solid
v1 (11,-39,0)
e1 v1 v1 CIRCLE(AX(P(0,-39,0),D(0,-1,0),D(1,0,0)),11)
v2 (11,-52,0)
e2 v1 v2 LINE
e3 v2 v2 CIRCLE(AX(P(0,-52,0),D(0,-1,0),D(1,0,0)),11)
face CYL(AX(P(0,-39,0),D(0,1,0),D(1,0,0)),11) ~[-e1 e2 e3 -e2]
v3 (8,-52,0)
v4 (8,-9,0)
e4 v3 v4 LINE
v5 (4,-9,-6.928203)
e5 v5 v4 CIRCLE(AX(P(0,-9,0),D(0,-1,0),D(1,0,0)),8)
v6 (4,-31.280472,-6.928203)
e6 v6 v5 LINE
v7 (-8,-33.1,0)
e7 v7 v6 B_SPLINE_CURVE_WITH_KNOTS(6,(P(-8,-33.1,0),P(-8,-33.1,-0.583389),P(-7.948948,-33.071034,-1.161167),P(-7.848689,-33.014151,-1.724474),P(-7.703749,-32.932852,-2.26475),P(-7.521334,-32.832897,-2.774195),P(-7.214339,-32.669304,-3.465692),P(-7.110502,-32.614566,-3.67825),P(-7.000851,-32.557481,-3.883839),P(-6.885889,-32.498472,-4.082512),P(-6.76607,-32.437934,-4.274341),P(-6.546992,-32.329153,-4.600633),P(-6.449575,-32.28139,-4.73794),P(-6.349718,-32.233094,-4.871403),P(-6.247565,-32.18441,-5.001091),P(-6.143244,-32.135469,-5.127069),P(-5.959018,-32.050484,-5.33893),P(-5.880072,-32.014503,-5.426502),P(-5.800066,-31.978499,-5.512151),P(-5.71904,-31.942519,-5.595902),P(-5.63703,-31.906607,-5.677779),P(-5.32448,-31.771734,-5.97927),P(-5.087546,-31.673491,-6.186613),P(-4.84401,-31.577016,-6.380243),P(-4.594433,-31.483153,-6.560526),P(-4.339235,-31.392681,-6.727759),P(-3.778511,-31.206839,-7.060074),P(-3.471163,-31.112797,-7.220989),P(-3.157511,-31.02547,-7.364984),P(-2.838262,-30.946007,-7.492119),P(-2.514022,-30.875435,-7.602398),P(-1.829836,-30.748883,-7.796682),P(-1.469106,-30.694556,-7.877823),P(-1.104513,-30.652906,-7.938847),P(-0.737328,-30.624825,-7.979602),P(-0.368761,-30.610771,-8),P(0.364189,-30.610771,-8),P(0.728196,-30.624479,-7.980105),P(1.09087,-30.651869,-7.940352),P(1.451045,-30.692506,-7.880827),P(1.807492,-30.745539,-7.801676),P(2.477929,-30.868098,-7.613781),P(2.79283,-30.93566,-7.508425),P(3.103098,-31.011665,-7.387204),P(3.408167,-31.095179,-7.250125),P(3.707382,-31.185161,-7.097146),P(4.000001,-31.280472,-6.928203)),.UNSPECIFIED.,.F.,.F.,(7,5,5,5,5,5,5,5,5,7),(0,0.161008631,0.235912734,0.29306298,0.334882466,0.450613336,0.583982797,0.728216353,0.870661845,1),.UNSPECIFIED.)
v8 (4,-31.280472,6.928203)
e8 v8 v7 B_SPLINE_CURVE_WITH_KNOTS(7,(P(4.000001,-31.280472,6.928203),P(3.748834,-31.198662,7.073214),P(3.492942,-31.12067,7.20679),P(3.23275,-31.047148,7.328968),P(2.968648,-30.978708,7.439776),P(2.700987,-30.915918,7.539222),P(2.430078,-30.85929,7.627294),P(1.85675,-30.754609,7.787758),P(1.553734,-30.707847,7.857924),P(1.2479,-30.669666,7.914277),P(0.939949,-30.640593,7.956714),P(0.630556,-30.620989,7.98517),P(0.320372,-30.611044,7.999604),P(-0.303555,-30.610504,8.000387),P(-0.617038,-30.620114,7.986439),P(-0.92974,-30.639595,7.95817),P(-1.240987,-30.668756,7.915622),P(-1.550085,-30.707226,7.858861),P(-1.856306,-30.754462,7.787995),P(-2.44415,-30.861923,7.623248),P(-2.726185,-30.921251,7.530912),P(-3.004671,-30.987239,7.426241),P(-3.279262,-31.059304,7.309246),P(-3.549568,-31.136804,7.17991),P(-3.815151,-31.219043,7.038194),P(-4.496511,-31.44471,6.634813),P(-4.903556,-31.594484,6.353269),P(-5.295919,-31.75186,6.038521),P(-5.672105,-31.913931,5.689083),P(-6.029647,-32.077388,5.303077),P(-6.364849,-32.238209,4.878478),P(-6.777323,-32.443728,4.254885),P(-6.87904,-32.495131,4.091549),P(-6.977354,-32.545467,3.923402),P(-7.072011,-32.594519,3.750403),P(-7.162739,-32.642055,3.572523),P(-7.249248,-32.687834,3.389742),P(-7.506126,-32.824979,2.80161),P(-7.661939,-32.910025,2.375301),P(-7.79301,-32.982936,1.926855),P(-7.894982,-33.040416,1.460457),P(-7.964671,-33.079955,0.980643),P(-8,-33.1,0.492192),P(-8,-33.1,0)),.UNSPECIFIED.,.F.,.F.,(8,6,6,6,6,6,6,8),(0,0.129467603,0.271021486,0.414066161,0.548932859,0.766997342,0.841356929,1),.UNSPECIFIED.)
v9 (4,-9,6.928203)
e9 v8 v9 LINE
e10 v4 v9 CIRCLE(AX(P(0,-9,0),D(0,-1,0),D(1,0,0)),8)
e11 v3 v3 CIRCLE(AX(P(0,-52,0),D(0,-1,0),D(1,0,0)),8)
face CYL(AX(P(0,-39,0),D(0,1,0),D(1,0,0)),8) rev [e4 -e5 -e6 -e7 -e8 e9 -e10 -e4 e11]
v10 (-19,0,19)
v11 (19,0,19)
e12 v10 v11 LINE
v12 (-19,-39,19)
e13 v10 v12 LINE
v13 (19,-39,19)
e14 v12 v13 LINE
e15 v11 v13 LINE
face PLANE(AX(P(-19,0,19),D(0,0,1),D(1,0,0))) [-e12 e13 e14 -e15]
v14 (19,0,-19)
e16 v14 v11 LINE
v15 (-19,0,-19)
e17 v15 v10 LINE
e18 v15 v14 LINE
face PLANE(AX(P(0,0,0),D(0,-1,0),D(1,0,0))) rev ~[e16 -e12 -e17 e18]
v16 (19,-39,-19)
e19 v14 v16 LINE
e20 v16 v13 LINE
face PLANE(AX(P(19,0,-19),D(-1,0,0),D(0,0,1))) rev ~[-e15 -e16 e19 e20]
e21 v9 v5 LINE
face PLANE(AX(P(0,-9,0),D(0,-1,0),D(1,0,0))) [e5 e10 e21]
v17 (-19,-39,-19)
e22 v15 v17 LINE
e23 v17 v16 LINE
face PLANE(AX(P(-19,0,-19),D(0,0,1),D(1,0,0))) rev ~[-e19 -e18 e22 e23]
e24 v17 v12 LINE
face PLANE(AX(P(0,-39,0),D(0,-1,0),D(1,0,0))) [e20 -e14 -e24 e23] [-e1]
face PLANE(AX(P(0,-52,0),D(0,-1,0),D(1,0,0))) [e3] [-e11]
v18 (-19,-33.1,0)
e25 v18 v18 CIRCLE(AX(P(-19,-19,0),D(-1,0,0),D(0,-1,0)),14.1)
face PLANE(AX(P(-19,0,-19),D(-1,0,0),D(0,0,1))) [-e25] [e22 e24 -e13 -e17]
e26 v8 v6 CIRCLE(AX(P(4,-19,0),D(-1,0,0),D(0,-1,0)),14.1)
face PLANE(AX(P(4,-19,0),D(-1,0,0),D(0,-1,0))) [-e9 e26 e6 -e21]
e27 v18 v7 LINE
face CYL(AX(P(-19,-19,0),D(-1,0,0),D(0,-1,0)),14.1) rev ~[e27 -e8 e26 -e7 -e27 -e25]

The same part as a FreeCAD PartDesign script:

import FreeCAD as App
import Part
import Sketcher
Q = App.Units.Quantity

doc = App.newDocument("Part")
body = doc.addObject("PartDesign::Body", "Body")

# Sketch on XZ plane
sketch1 = body.newObject("Sketcher::SketchObject", "Sketch")
sketch1.AttachmentSupport = (doc.getObject("XZ_Plane"), [""])
sketch1.MapMode = "FlatFace"
sketch1.addGeometry([
    Part.LineSegment(App.Vector(-19, 19, 0), App.Vector(-19, -19, 0)),
    Part.LineSegment(App.Vector(-19, -19, 0), App.Vector(19, -19, 0)),
    Part.LineSegment(App.Vector(19, -19, 0), App.Vector(19, 19, 0)),
    Part.LineSegment(App.Vector(19, 19, 0), App.Vector(-19, 19, 0)),
], False)
sketch1.addConstraint([
    Sketcher.Constraint("Coincident", 0, 2, 1, 1),
    Sketcher.Constraint("Coincident", 1, 2, 2, 1),
    Sketcher.Constraint("Coincident", 2, 2, 3, 1),
    Sketcher.Constraint("Coincident", 3, 2, 0, 1),
    Sketcher.Constraint("Vertical", 0),
    Sketcher.Constraint("Horizontal", 1),
    Sketcher.Constraint("Vertical", 2),
    Sketcher.Constraint("Horizontal", 3),
    Sketcher.Constraint("Symmetric", 0, 2, 2, 2, -1, 1),
    Sketcher.Constraint("Equal", 3, 0),
    Sketcher.Constraint("DistanceX", 1, 1, 1, 2, Q("38 mm")),
])
pad1 = body.newObject("PartDesign::Pad", "Pad")
pad1.Profile = sketch1
pad1.Length = 39

# Sketch on XZ plane
sketch2 = body.newObject("Sketcher::SketchObject", "Sketch001")
sketch2.AttachmentSupport = (doc.getObject("XZ_Plane"), [""])
sketch2.MapMode = "FlatFace"
sketch2.AttachmentOffset = App.Placement(App.Vector(0, 0, 39), App.Rotation())
sketch2.addGeometry([
    Part.Circle(App.Vector(0, 0, 0), App.Vector(0, 0, 1), 11),
    Part.Circle(App.Vector(0, 0, 0), App.Vector(0, 0, 1), 8),
], False)
sketch2.addConstraint([
    Sketcher.Constraint("Coincident", 0, 3, -1, 1),
    Sketcher.Constraint("Coincident", 1, 3, -1, 1),
    Sketcher.Constraint("Diameter", 0, Q("22 mm")),
    Sketcher.Constraint("Diameter", 1, Q("16 mm")),
])
pad2 = body.newObject("PartDesign::Pad", "Pad001")
pad2.Profile = sketch2
pad2.Length = 13

# Sketch on XZ plane
sketch3 = body.newObject("Sketcher::SketchObject", "Sketch002")
sketch3.AttachmentSupport = (doc.getObject("XZ_Plane"), [""])
sketch3.MapMode = "FlatFace"
sketch3.AttachmentOffset = App.Placement(App.Vector(0, 0, 39), App.Rotation())
sketch3.addGeometry(Part.Circle(App.Vector(0, 0, 0), App.Vector(0, 0, 1), 8), False)
sketch3.addConstraint([
    Sketcher.Constraint("Coincident", 0, 3, -1, 1),
    Sketcher.Constraint("Diameter", 0, Q("16 mm")),
])
pocket1 = body.newObject("PartDesign::Pocket", "Pocket")
pocket1.Profile = sketch3
pocket1.Length = 30

# Sketch on YZ plane
sketch4 = body.newObject("Sketcher::SketchObject", "Sketch003")
sketch4.AttachmentSupport = (doc.getObject("YZ_Plane"), [""])
sketch4.MapMode = "FlatFace"
sketch4.AttachmentOffset = App.Placement(App.Vector(0, 0, -19), App.Rotation())
sketch4.addGeometry(Part.Circle(App.Vector(-19, 0, 0), App.Vector(0, 0, 1), 14), False)
sketch4.addConstraint([
    Sketcher.Constraint("PointOnObject", 0, 3, -1),
    Sketcher.Constraint("Diameter", 0, Q("28.2 mm")),
    Sketcher.Constraint("DistanceX", 0, 3, -1, 1, Q("19 mm")),
])
pocket2 = body.newObject("PartDesign::Pocket", "Pocket001")
pocket2.Profile = sketch4
pocket2.Length = 23
pocket2.Reversed = True

doc.recompute()
